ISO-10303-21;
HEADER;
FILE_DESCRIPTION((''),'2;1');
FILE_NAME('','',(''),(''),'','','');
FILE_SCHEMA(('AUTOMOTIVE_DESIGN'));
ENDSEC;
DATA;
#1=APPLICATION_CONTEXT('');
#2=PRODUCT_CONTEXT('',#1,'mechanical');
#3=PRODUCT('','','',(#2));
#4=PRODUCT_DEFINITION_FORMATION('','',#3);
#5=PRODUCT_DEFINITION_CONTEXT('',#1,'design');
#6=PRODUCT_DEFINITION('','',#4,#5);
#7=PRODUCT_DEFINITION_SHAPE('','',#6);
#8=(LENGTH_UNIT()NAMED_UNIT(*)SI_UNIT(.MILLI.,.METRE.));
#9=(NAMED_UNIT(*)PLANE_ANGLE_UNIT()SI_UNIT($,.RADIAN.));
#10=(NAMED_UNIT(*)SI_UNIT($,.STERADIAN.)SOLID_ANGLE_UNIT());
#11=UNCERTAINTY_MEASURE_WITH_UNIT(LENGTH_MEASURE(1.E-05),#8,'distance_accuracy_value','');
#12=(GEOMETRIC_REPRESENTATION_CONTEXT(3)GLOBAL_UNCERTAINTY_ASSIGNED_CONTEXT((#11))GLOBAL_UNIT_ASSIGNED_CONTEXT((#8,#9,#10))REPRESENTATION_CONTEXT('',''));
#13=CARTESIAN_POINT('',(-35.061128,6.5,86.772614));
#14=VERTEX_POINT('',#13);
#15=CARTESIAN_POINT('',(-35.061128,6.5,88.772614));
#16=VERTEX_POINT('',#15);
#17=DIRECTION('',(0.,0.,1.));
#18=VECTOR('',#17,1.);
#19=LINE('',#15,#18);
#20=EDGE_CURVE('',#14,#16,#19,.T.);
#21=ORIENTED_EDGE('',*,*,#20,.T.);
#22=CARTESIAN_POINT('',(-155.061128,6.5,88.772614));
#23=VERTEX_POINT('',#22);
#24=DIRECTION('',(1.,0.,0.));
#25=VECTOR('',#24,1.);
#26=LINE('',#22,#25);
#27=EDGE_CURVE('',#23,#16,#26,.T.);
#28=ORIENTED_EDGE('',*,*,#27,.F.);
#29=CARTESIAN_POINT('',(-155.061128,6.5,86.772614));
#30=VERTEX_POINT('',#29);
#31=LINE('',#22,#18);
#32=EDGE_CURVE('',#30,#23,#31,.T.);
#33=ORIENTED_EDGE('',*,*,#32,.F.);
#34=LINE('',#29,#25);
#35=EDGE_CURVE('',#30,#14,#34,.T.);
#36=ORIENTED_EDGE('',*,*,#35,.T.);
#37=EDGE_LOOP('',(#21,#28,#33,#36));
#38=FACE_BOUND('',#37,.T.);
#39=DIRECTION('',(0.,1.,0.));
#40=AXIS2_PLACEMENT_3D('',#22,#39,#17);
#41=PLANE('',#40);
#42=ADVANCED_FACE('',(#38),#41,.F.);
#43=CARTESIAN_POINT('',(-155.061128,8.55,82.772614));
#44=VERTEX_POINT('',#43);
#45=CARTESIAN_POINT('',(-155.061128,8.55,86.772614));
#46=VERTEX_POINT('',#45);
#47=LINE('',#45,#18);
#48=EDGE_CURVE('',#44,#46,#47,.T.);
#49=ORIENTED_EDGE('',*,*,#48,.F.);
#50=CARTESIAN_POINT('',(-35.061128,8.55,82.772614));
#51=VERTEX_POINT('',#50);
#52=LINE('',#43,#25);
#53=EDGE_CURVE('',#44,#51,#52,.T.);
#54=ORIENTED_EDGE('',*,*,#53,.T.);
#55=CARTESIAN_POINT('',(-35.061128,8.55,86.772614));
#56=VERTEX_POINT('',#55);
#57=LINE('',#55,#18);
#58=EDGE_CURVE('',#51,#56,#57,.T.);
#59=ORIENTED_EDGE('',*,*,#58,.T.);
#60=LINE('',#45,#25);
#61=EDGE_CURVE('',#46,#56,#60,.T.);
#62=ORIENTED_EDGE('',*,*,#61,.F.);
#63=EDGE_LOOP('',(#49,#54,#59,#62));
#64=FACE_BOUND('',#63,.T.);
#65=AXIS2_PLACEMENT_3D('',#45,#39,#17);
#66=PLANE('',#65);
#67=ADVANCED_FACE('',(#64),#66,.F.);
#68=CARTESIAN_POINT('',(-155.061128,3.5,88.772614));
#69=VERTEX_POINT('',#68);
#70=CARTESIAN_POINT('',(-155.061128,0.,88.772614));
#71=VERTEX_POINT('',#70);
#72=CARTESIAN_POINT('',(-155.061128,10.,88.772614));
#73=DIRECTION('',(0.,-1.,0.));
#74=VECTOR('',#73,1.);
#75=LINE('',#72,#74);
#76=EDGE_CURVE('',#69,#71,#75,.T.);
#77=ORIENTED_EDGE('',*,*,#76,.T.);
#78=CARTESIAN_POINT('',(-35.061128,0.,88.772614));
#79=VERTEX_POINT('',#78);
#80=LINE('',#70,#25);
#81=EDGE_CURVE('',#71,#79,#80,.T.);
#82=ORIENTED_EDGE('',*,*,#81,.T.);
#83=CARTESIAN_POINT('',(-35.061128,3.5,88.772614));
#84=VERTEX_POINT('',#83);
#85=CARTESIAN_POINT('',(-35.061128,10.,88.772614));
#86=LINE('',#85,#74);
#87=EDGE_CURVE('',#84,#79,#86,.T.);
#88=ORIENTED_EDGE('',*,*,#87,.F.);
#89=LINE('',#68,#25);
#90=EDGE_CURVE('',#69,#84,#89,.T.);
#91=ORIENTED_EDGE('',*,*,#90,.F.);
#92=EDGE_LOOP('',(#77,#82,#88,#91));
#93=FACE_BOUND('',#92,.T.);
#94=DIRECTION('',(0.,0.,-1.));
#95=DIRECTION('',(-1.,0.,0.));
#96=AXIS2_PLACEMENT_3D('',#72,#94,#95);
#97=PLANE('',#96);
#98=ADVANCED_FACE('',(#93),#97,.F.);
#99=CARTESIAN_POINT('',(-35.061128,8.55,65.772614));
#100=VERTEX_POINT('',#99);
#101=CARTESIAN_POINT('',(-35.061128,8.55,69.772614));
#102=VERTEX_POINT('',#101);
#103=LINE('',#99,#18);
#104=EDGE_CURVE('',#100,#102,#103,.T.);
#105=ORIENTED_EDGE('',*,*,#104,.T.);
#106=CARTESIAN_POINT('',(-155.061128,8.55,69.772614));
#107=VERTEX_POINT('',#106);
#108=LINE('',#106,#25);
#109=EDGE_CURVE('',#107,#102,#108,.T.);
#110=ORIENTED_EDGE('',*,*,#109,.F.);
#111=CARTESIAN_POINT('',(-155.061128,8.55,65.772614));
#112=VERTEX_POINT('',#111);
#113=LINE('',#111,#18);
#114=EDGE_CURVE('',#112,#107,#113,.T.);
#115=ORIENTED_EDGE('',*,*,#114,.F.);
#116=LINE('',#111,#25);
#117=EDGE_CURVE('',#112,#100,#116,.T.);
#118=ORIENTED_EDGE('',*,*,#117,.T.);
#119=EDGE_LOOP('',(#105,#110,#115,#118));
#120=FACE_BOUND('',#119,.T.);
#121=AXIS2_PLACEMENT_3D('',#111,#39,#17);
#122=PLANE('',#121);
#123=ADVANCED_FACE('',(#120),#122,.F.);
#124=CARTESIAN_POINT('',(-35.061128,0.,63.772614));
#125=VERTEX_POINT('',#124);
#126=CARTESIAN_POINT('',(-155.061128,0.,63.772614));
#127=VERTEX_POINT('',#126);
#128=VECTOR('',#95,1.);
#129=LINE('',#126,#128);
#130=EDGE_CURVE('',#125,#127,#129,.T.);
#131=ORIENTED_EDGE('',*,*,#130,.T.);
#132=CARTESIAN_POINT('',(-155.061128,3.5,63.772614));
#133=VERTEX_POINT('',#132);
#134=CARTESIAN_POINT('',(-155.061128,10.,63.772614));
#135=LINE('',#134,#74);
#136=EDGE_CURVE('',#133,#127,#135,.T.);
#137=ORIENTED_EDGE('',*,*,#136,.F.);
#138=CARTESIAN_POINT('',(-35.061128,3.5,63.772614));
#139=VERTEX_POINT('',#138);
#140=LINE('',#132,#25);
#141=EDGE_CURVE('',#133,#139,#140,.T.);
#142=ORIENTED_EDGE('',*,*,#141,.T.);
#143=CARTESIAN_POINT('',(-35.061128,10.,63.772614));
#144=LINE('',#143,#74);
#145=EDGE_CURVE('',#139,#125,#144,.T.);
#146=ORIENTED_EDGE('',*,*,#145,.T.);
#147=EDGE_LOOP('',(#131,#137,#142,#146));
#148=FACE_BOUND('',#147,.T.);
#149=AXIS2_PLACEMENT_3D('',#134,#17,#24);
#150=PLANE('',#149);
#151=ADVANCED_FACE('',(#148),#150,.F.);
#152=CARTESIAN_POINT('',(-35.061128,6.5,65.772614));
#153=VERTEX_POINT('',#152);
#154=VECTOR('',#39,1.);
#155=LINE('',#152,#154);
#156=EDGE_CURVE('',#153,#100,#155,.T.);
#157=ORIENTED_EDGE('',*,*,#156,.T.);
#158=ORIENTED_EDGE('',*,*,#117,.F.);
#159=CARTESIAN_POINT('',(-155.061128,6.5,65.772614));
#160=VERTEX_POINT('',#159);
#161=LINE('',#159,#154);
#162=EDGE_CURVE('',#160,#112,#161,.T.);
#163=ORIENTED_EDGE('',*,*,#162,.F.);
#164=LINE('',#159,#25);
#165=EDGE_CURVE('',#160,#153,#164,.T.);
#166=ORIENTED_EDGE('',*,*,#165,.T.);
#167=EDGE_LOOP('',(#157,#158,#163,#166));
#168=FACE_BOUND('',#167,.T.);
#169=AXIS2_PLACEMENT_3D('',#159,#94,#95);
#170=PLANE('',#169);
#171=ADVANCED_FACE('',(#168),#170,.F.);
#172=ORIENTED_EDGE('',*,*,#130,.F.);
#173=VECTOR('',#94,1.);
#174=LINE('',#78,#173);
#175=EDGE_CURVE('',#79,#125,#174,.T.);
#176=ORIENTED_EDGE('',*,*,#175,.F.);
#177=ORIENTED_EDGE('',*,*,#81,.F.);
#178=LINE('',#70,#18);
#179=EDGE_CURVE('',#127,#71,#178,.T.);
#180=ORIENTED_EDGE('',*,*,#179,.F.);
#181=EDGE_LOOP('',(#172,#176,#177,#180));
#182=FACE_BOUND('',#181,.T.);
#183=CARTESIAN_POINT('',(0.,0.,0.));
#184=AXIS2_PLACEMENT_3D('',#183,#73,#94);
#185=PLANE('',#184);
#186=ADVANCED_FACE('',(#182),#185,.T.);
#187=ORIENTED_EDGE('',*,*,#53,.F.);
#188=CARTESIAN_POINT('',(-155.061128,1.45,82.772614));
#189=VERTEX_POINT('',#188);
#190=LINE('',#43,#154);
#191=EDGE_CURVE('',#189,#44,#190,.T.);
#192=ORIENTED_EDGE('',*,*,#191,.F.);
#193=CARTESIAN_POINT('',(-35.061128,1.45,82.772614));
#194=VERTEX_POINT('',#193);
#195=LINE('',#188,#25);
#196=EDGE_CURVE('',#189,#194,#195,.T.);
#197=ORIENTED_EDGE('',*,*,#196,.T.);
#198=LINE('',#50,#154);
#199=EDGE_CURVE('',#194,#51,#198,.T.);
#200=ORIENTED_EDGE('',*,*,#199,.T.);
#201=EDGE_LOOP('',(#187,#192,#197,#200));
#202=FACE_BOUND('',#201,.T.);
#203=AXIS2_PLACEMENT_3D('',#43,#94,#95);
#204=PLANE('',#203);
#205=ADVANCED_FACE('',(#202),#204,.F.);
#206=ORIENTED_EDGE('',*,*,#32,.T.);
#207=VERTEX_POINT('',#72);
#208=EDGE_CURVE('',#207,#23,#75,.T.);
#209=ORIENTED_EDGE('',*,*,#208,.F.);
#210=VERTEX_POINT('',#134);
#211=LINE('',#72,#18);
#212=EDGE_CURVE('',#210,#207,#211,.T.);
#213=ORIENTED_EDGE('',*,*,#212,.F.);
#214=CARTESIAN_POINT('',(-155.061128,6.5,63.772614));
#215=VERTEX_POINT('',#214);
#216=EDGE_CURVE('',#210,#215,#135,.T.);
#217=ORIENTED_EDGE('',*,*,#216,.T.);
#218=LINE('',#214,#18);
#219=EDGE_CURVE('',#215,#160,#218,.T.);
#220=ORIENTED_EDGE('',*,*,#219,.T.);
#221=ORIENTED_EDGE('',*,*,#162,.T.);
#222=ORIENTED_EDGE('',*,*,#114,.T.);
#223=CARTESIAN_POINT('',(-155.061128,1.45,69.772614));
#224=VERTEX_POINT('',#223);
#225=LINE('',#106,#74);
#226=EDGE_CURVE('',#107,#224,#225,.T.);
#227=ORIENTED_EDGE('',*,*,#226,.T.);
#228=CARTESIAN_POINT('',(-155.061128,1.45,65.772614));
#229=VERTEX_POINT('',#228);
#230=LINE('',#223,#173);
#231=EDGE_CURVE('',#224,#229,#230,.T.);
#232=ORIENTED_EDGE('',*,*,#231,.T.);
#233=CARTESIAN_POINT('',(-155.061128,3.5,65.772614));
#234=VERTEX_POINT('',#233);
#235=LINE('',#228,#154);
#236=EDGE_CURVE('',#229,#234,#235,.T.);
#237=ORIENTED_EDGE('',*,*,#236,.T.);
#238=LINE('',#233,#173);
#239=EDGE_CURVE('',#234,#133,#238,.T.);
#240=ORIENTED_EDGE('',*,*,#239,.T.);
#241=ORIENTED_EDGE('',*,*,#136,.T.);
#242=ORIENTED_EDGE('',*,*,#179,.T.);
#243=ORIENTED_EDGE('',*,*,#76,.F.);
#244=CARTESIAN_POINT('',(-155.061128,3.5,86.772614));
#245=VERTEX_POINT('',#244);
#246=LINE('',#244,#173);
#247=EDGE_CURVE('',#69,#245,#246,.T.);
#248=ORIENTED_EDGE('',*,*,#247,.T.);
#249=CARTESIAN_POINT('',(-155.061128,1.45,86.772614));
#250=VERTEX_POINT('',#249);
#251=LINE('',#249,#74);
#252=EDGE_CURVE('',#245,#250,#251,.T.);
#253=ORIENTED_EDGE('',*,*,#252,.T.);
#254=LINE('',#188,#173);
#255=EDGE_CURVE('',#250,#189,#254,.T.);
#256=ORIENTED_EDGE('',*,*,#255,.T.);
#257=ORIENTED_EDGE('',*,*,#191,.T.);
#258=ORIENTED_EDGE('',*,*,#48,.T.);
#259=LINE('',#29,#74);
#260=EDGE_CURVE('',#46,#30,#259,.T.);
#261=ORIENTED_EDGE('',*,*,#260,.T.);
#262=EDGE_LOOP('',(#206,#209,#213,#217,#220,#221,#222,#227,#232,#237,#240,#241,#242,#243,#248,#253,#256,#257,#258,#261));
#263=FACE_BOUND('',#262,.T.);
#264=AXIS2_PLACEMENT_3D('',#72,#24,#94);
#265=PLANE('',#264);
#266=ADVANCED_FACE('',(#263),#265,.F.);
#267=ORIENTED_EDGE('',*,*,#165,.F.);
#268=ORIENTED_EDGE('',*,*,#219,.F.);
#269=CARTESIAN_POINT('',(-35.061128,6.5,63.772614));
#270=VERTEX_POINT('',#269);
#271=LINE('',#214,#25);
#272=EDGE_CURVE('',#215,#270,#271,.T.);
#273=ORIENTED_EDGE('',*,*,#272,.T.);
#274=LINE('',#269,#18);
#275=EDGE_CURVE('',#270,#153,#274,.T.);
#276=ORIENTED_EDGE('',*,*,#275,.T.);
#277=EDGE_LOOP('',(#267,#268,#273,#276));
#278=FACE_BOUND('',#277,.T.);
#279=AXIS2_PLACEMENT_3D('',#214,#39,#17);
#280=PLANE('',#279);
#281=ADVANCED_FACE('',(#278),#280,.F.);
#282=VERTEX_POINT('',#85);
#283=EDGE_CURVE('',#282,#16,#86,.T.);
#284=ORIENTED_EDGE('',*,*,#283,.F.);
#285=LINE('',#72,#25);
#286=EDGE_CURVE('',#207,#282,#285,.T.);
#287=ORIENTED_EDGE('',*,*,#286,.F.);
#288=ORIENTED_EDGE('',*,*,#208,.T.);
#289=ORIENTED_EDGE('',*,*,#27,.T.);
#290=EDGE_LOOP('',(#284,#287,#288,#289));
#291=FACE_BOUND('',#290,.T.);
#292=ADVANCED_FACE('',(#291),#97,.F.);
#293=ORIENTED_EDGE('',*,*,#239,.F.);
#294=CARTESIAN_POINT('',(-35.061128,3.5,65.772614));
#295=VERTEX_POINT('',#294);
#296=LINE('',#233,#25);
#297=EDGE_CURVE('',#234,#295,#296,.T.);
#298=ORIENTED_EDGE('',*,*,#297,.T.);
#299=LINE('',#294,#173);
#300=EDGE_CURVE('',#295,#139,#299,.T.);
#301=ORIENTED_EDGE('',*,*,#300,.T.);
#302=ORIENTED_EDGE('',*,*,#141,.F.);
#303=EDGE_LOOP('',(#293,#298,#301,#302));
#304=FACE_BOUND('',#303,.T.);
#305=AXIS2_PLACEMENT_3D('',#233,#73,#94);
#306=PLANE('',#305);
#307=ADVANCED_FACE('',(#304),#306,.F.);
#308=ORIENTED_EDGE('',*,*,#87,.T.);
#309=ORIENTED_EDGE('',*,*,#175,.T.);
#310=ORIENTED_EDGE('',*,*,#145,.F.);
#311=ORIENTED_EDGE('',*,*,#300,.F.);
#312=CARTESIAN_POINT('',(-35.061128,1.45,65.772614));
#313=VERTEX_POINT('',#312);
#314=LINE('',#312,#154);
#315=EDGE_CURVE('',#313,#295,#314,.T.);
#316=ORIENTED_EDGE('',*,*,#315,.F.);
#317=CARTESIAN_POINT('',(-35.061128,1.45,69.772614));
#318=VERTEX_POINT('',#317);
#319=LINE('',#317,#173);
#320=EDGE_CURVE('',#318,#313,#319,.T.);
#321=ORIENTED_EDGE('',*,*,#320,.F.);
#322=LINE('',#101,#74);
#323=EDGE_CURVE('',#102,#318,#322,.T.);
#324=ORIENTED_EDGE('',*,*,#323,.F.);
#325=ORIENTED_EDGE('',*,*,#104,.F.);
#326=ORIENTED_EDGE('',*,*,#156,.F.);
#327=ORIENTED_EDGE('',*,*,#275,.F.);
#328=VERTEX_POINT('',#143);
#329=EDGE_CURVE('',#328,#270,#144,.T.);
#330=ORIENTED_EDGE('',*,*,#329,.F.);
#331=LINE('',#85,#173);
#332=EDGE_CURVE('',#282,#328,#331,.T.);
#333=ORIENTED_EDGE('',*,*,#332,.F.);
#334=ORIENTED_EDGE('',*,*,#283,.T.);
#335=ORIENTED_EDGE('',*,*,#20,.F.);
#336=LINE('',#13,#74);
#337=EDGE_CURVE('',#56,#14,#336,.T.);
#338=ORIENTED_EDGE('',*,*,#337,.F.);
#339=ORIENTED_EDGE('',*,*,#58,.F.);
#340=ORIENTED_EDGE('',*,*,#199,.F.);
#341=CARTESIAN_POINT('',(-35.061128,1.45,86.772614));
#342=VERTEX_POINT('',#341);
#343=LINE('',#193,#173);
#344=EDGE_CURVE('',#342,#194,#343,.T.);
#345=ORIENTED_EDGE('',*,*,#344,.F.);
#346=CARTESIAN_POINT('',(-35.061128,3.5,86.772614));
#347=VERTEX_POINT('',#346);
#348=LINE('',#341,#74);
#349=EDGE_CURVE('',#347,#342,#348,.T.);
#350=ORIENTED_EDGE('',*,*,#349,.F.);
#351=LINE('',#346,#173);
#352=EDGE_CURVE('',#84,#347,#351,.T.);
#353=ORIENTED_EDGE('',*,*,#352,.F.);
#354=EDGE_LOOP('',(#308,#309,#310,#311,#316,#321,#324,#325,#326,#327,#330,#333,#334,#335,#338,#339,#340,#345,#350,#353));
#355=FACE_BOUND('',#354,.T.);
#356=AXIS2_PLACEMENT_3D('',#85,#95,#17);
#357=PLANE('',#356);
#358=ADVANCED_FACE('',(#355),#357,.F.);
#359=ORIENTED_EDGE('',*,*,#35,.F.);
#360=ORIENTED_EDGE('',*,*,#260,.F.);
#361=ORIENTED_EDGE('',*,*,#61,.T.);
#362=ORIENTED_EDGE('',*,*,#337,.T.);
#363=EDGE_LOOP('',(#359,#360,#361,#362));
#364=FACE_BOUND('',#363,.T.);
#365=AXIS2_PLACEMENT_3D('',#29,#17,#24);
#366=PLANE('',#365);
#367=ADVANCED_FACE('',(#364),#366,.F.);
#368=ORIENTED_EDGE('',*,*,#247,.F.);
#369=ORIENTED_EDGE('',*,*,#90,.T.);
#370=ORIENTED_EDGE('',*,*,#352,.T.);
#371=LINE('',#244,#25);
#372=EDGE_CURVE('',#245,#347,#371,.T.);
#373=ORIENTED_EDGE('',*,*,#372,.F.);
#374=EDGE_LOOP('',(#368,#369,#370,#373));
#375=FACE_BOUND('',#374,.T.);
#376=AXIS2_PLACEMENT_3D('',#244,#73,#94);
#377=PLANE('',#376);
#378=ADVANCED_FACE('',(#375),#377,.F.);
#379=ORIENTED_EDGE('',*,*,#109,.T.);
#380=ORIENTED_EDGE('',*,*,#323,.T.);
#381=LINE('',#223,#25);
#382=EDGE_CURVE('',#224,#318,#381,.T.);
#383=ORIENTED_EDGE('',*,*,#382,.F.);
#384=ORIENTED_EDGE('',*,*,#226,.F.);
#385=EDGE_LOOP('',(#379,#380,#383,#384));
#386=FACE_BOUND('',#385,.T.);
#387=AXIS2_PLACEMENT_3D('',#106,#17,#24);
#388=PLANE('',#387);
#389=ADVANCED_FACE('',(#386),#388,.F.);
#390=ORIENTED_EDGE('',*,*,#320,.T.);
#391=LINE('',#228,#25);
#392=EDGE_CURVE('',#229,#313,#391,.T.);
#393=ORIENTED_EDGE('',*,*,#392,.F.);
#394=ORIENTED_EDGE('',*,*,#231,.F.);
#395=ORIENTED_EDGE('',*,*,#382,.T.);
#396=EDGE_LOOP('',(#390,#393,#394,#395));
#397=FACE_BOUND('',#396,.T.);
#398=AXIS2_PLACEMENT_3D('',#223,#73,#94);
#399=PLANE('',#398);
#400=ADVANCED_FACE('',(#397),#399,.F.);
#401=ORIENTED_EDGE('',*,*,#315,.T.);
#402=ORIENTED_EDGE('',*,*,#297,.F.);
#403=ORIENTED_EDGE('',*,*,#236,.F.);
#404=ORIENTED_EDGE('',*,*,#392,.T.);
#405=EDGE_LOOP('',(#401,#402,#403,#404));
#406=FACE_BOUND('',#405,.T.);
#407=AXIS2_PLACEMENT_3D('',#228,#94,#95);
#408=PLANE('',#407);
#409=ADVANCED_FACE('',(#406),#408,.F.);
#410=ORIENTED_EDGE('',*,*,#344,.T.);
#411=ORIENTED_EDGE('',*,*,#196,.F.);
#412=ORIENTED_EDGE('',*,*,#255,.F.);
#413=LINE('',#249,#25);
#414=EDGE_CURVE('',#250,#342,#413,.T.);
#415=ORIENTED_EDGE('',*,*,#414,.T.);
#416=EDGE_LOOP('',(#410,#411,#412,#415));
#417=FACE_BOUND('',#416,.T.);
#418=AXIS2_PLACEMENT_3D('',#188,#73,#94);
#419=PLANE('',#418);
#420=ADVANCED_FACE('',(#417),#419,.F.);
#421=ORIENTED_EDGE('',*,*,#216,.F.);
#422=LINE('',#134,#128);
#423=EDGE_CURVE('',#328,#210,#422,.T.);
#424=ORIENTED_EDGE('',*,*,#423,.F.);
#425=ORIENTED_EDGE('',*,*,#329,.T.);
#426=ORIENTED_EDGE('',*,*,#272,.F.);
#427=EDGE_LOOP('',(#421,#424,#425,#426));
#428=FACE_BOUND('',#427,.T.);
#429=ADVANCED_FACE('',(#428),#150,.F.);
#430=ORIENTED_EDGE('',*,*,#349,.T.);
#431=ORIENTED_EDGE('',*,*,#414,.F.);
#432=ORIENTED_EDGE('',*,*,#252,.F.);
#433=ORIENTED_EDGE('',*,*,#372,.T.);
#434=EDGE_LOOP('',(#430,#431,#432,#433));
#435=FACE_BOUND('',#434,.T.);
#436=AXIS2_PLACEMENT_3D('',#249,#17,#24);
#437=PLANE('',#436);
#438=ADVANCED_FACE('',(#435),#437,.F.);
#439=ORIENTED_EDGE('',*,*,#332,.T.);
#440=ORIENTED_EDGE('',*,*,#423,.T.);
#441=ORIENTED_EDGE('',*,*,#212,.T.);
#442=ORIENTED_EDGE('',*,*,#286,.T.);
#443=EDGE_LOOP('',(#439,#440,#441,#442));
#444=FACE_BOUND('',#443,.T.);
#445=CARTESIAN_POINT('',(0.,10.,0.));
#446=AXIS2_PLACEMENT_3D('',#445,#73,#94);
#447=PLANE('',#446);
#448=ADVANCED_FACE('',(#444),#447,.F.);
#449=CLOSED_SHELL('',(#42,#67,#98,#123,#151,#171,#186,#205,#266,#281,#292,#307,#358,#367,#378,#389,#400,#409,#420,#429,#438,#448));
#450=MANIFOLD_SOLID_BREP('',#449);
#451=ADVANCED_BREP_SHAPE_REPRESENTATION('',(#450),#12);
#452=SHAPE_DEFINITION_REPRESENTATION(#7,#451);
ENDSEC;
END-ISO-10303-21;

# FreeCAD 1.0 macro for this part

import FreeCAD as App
import Part
import Sketcher
from FreeCAD import Vector
Q = App.Units.Quantity


def add_polygon(sketch, points):
    """Adds a closed chain of lines whose ends are joined by coincident constraints."""
    first, n = sketch.GeometryCount, len(points)
    for a, b in zip(points, points[1:] + points[:1]):
        sketch.addGeometry(Part.LineSegment(App.Vector(*a, 0), App.Vector(*b, 0)), False)
    for i in range(n):
        sketch.addConstraint(Sketcher.Constraint("Coincident", first + i, 2, first + (i + 1) % n, 1))

doc = App.newDocument("Part")
params = doc.addObject("Spreadsheet::Sheet", "Params")
for row, (alias, value) in enumerate([
    ("sketch1_width", "120 mm"),
    ("sketch1_height", "25 mm"),
    ("pad1_length", "10 mm"),
    ("sketch2_width", "3 mm"),
    ("sketch2_height", "2 mm"),
    ("sketch2_height2", "4 mm"),
    ("sketch2_width2", "7.1 mm"),
    ("pocket1_length", "120 mm"),
    ("sketch3_width", "3 mm"),
    ("sketch3_height", "2 mm"),
    ("sketch3_height2", "4 mm"),
    ("sketch3_width2", "7.1 mm"),
    ("pocket2_length", "120 mm"),
], start=1):
    params.set(f"A{row}", alias)
    params.set(f"B{row}", "=" + value)
    params.setAlias(f"B{row}", alias)

body = doc.addObject("PartDesign::Body", "Body")

sketch1 = doc.addObject("Sketcher::SketchObject", "Sketch")
body.addObject(sketch1)
sketch1.AttachmentSupport = (doc.XZ_Plane, [""])
sketch1.MapMode = "FlatFace"
add_polygon(sketch1, [(-155, 64), (-155, 89), (-35, 89), (-35, 64)])
sketch1.addConstraint([
    Sketcher.Constraint("Vertical", 0),
    Sketcher.Constraint("Horizontal", 1),
    Sketcher.Constraint("Vertical", 2),
    Sketcher.Constraint("Horizontal", 3),
    Sketcher.Constraint("DistanceX", 1, 1, 1, 2, Q("120 mm")),
    Sketcher.Constraint("DistanceY", 0, 1, 0, 2, Q("25 mm")),
    Sketcher.Constraint("DistanceX", 0, 2, -1, 1, Q("155.061128 mm")),
    Sketcher.Constraint("DistanceY", -1, 1, 0, 2, Q("88.772614 mm")),
])
sketch1.setExpression("Constraints[8]", "Params.sketch1_width")
sketch1.setExpression("Constraints[9]", "Params.sketch1_height")
pad1 = doc.addObject("PartDesign::Pad", "Pad")
body.addObject(pad1)
pad1.Profile = sketch1
pad1.setExpression("Length", "Params.pad1_length")
pad1.Reversed = True

sketch2 = doc.addObject("Sketcher::SketchObject", "Sketch001")
body.addObject(sketch2)
sketch2.AttachmentSupport = (doc.YZ_Plane, [""])
sketch2.MapMode = "FlatFace"
sketch2.AttachmentOffset = App.Placement(Vector(0, 0, -35.061128), App.Rotation())
add_polygon(sketch2, [(6.5, 63.8), (6.5, 65.8), (8.6, 65.8), (8.6, 69.8), (1.4, 69.8), (1.4, 65.8), (3.5, 65.8), (3.5, 63.8)])
sketch2.addConstraint([
    Sketcher.Constraint("Vertical", 0),
    Sketcher.Constraint("Horizontal", 1),
    Sketcher.Constraint("Vertical", 2),
    Sketcher.Constraint("Horizontal", 3),
    Sketcher.Constraint("Vertical", 4),
    Sketcher.Constraint("Horizontal", 5),
    Sketcher.Constraint("Vertical", 6),
    Sketcher.Constraint("Horizontal", 7),
    Sketcher.Constraint("Horizontal", 1, 2, 4, 2),
    Sketcher.Constraint("Equal", 1, 5),
    Sketcher.Constraint("DistanceX", 7, 1, 7, 2, Q("3 mm")),
    Sketcher.Constraint("DistanceY", 0, 1, 0, 2, Q("2 mm")),
    Sketcher.Constraint("DistanceY", 2, 1, 2, 2, Q("4 mm")),
    Sketcher.Constraint("DistanceX", 3, 2, 3, 1, Q("7.1 mm")),
    Sketcher.Constraint("DistanceX", -1, 1, 0, 2, Q("6.5 mm")),
    Sketcher.Constraint("DistanceY", -1, 1, 0, 2, Q("65.772614 mm")),
])
sketch2.setExpression("Constraints[18]", "Params.sketch2_width")
sketch2.setExpression("Constraints[19]", "Params.sketch2_height")
sketch2.setExpression("Constraints[20]", "Params.sketch2_height2")
sketch2.setExpression("Constraints[21]", "Params.sketch2_width2")
pocket1 = doc.addObject("PartDesign::Pocket", "Pocket")
body.addObject(pocket1)
pocket1.Profile = sketch2
pocket1.setExpression("Length", "Params.pocket1_length")

sketch3 = doc.addObject("Sketcher::SketchObject", "Sketch002")
body.addObject(sketch3)
sketch3.AttachmentSupport = (doc.YZ_Plane, [""])
sketch3.MapMode = "FlatFace"
sketch3.AttachmentOffset = App.Placement(Vector(0, 0, -35.061128), App.Rotation())
add_polygon(sketch3, [(6.5, 86.8), (6.5, 88.8), (3.5, 88.8), (3.5, 86.8), (1.4, 86.8), (1.4, 82.8), (8.6, 82.8), (8.6, 86.8)])
sketch3.addConstraint([
    Sketcher.Constraint("Vertical", 0),
    Sketcher.Constraint("Horizontal", 1),
    Sketcher.Constraint("Vertical", 2),
    Sketcher.Constraint("Horizontal", 3),
    Sketcher.Constraint("Vertical", 4),
    Sketcher.Constraint("Horizontal", 5),
    Sketcher.Constraint("Vertical", 6),
    Sketcher.Constraint("Horizontal", 7),
    Sketcher.Constraint("Horizontal", 3, 2, 6, 2),
    Sketcher.Constraint("Equal", 3, 7),
    Sketcher.Constraint("DistanceX", 1, 2, 1, 1, Q("3 mm")),
    Sketcher.Constraint("DistanceY", 0, 1, 0, 2, Q("2 mm")),
    Sketcher.Constraint("DistanceY", 4, 2, 4, 1, Q("4 mm")),
    Sketcher.Constraint("DistanceX", 5, 1, 5, 2, Q("7.1 mm")),
    Sketcher.Constraint("DistanceX", -1, 1, 0, 2, Q("6.5 mm")),
    Sketcher.Constraint("DistanceY", -1, 1, 0, 2, Q("88.772614 mm")),
])
sketch3.setExpression("Constraints[18]", "Params.sketch3_width")
sketch3.setExpression("Constraints[19]", "Params.sketch3_height")
sketch3.setExpression("Constraints[20]", "Params.sketch3_height2")
sketch3.setExpression("Constraints[21]", "Params.sketch3_width2")
pocket2 = doc.addObject("PartDesign::Pocket", "Pocket001")
body.addObject(pocket2)
pocket2.Profile = sketch3
pocket2.setExpression("Length", "Params.pocket2_length")

doc.recompute()
